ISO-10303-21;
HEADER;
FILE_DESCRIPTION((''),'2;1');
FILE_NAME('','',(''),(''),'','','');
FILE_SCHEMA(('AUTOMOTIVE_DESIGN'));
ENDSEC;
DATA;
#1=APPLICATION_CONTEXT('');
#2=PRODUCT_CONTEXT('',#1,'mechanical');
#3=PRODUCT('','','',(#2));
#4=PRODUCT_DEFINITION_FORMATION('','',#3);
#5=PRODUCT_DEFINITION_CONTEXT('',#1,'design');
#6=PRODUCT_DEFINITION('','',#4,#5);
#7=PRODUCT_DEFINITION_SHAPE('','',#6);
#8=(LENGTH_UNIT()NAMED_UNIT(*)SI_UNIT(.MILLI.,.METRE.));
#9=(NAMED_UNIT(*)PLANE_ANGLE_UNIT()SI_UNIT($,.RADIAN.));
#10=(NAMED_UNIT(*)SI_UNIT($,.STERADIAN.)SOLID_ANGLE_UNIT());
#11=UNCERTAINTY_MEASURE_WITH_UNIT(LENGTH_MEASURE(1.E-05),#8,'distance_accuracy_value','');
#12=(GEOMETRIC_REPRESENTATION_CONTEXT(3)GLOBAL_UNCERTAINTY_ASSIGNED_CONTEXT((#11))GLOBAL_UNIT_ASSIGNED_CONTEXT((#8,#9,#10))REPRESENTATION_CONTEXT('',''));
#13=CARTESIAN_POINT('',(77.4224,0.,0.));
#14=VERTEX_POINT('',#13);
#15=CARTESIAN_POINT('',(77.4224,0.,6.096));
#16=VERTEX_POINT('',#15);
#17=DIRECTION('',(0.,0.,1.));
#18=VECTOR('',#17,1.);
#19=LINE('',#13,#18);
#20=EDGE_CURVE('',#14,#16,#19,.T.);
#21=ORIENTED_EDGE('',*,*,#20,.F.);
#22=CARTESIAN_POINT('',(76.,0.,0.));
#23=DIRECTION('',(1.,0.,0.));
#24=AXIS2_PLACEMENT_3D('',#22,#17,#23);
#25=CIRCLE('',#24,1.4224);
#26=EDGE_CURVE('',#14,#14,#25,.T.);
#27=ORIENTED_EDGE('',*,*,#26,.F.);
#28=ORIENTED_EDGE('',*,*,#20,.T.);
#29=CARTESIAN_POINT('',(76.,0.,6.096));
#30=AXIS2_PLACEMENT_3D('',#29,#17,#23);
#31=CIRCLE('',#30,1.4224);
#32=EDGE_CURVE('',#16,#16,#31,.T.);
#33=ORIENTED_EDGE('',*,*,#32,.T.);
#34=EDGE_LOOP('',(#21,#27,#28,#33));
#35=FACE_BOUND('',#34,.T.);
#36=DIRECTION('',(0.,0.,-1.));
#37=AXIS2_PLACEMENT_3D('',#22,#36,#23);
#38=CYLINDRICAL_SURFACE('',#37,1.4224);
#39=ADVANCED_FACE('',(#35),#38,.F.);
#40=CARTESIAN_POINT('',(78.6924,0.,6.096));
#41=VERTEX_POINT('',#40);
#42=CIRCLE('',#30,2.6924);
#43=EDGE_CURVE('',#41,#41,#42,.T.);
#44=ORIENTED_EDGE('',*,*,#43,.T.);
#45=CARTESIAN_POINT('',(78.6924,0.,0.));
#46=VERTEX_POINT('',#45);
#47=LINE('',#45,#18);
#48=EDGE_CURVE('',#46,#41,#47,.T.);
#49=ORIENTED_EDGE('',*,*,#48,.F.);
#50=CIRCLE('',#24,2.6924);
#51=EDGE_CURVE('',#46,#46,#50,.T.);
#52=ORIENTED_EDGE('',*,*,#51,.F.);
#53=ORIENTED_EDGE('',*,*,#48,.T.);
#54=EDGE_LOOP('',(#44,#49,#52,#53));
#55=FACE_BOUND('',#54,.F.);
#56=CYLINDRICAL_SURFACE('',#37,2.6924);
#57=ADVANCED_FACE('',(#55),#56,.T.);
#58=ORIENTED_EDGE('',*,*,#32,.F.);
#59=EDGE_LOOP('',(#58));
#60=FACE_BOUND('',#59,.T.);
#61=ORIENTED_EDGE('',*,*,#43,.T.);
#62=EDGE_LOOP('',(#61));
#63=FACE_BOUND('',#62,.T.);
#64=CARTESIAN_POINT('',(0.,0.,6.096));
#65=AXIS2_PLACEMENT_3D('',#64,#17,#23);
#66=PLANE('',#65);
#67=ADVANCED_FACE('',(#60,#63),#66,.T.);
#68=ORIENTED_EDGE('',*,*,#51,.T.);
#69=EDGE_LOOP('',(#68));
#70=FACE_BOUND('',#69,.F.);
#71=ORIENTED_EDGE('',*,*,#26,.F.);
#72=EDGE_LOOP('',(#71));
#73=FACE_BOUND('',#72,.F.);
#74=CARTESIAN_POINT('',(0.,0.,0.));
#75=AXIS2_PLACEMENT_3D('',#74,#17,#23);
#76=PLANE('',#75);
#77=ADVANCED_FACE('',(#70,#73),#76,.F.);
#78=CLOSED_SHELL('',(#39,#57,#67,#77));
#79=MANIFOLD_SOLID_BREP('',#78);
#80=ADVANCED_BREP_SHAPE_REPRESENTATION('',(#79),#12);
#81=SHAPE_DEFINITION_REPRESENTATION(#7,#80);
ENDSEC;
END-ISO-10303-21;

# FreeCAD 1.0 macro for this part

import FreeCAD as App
import Part
import Sketcher
from FreeCAD import Vector
Q = App.Units.Quantity

doc = App.newDocument("Part")
body = doc.addObject("PartDesign::Body", "Body")

# Sketch on XY plane
sketch1 = doc.addObject("Sketcher::SketchObject", "Sketch")
body.addObject(sketch1)
sketch1.AttachmentSupport = (doc.XY_Plane, [""])
sketch1.MapMode = "FlatFace"
sketch1.addGeometry(Part.Circle(Vector(76, 0, 0), Vector(0, 0, 1), 2.6924), False)
sketch1.addGeometry(Part.Circle(Vector(76, 0, 0), Vector(0, 0, 1), 1.4224), False)
sketch1.addConstraint(Sketcher.Constraint("Coincident", 1, 3, 0, 3))
sketch1.addConstraint(Sketcher.Constraint("PointOnObject", 0, 3, -1))
sketch1.addConstraint(Sketcher.Constraint("Diameter", 0, Q("0.212 in")))
sketch1.addConstraint(Sketcher.Constraint("Diameter", 1, Q("0.112 in")))
sketch1.addConstraint(Sketcher.Constraint("DistanceX", -1, 1, 0, 3, 76.0))
pad1 = doc.addObject("PartDesign::Pad", "Pad")
body.addObject(pad1)
pad1.Profile = sketch1
pad1.Length = Q("0.24 in")

doc.recompute()
